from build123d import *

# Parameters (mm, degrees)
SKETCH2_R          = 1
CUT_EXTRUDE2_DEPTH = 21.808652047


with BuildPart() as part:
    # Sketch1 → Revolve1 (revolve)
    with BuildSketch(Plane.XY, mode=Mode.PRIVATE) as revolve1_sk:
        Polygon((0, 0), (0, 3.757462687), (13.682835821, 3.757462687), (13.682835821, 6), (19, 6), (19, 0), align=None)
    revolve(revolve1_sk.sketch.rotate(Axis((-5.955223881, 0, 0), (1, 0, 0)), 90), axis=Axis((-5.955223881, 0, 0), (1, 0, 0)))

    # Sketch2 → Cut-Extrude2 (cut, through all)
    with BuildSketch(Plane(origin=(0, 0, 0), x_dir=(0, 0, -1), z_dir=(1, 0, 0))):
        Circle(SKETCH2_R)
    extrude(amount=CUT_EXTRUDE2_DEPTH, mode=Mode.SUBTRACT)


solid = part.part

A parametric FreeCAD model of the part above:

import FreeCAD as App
import Part
import Sketcher
from FreeCAD import Vector
Q = App.Units.Quantity

doc = App.newDocument("Part")
body = doc.addObject("PartDesign::Body", "Body")

sketch1 = doc.addObject("Sketcher::SketchObject", "Sketch")
body.addObject(sketch1)
sketch1.AttachmentSupport = (doc.XY_Plane, [""])
sketch1.MapMode = "FlatFace"
sketch1.addGeometry([
    Part.LineSegment(Vector(0, 3.757463, 0), Vector(0, 0, 0)),
    Part.LineSegment(Vector(0, 0, 0), Vector(19, 0, 0)),
    Part.LineSegment(Vector(19, 0, 0), Vector(19, 6, 0)),
    Part.LineSegment(Vector(19, 6, 0), Vector(13.682836, 6, 0)),
    Part.LineSegment(Vector(13.682836, 6, 0), Vector(13.682836, 3.757463, 0)),
    Part.LineSegment(Vector(13.682836, 3.757463, 0), Vector(0, 3.757463, 0)),
], False)
sketch1.addConstraint([
    Sketcher.Constraint("Coincident", 0, 2, 1, 1),
    Sketcher.Constraint("Coincident", 1, 2, 2, 1),
    Sketcher.Constraint("Coincident", 2, 2, 3, 1),
    Sketcher.Constraint("Coincident", 3, 2, 4, 1),
    Sketcher.Constraint("Coincident", 4, 2, 5, 1),
    Sketcher.Constraint("Coincident", 5, 2, 0, 1),
    Sketcher.Constraint("Vertical", 0),
    Sketcher.Constraint("Horizontal", 1),
    Sketcher.Constraint("Vertical", 2),
    Sketcher.Constraint("Horizontal", 3),
    Sketcher.Constraint("Vertical", 4),
    Sketcher.Constraint("Horizontal", 5),
    Sketcher.Constraint("Coincident", 0, 2, -1, 1),
    Sketcher.Constraint("DistanceX", 1, 1, 1, 2, Q("19 mm")),
    Sketcher.Constraint("DistanceY", 2, 1, 2, 2, Q("6 mm")),
    Sketcher.Constraint("DistanceX", 3, 2, 3, 1, Q("5.317164 mm")),
    Sketcher.Constraint("DistanceY", 0, 2, 0, 1, Q("3.757463 mm")),
])
revolution = doc.addObject("PartDesign::Revolution", "Revolution")
body.addObject(revolution)
revolution.Profile = sketch1
revolution.ReferenceAxis = (sketch1, ["H_Axis"])
revolution.Angle = 360

sketch2 = doc.addObject("Sketcher::SketchObject", "Sketch001")
body.addObject(sketch2)
sketch2.AttachmentSupport = (doc.YZ_Plane, [""])
sketch2.MapMode = "FlatFace"
sketch2.addGeometry(Part.Circle(Vector(0, 0, 0), Vector(0, 0, 1), 1), False)
sketch2.addConstraint([
    Sketcher.Constraint("Coincident", 0, 3, -1, 1),
    Sketcher.Constraint("Diameter", 0, Q("2 mm")),
])
pocket1 = doc.addObject("PartDesign::Pocket", "Pocket")
body.addObject(pocket1)
pocket1.Profile = sketch2
pocket1.Type = "ThroughAll"
pocket1.Reversed = True

doc.recompute()
